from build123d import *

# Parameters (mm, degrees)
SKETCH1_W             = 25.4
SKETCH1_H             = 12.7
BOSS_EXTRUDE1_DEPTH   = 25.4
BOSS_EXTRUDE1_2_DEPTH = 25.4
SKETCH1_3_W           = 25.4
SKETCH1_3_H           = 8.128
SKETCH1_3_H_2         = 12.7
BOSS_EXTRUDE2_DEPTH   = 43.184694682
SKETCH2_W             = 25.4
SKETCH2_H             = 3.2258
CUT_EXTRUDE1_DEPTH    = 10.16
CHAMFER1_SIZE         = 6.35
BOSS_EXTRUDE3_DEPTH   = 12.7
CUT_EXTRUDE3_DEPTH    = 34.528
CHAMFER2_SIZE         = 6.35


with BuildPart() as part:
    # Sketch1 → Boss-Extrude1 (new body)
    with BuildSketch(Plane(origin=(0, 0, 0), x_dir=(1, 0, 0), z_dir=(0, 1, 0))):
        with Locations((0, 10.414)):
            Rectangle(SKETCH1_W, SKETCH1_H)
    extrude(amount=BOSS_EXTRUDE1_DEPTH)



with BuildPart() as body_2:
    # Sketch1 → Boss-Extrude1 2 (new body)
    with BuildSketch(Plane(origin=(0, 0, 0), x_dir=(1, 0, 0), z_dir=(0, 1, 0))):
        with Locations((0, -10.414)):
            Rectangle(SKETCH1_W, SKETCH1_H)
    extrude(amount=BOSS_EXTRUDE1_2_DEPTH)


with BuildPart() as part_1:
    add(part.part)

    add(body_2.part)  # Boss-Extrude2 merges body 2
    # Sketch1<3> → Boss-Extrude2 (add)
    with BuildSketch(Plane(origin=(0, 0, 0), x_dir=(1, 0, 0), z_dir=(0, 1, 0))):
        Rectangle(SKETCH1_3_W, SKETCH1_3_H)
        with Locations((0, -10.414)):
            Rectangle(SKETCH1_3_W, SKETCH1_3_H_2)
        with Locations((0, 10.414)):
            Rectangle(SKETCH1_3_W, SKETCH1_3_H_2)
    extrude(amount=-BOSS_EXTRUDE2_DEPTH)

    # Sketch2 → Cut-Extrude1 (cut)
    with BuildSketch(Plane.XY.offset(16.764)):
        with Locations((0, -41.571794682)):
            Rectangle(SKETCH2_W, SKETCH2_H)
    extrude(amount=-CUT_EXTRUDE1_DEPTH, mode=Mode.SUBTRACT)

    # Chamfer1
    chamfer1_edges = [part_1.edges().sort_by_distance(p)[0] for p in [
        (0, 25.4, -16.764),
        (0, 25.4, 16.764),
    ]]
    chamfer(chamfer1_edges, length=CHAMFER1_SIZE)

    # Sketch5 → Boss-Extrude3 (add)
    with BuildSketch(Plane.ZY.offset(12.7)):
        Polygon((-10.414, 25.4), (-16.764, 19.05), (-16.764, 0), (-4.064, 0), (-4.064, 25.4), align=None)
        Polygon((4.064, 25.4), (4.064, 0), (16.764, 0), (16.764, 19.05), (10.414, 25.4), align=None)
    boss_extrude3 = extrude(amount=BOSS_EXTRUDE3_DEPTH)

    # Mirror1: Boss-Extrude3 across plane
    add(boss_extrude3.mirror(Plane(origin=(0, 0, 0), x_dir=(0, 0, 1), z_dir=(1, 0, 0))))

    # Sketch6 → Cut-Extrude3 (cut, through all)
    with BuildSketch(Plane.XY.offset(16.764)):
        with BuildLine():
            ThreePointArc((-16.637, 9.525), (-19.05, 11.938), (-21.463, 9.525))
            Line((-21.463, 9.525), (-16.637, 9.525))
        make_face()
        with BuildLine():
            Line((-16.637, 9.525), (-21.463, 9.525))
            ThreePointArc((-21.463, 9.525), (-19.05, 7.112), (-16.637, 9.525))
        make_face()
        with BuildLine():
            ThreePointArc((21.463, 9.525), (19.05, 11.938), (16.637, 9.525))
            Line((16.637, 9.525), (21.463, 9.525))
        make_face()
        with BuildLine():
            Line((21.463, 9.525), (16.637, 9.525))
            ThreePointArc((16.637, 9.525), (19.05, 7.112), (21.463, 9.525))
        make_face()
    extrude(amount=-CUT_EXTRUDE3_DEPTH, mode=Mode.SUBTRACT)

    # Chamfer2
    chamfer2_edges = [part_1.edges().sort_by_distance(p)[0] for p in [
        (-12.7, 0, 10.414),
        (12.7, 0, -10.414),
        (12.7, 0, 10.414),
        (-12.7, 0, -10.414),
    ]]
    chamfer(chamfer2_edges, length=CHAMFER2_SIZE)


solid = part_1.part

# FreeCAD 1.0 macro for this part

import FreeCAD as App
import Part
import Sketcher

V = App.Vector
Q = App.Units.Quantity


def edges_at(feature, points):
    """Names of the edges that pass closest to the given points."""
    edges = feature.Shape.Edges
    near = lambda p: min(range(len(edges)), key=lambda i: edges[i].distToShape(Part.Vertex(*p))[0])
    return sorted({f"Edge{near(p) + 1}" for p in points})

doc = App.newDocument("Part")
params = doc.addObject("Spreadsheet::Sheet", "Params")
for row, (alias, value) in enumerate([
    ("sketch1_width", "1 in"),
    ("sketch1_height", "0.5 in"),
    ("pad1_length", "1 in"),
    ("sketch2_width", "1 in"),
    ("sketch2_height", "0.5 in"),
    ("pad2_length", "1 in"),
    ("sketch3_width", "1 in"),
    ("sketch3_height", "1.32 in"),
    ("pad3_length", "43.184695 mm"),
    ("sketch4_width", "1 in"),
    ("sketch4_height", "0.127 in"),
    ("pocket1_length", "0.4 in"),
    ("chamfer_size", "0.25 in"),
    ("sketch5_width", "1 in"),
    ("sketch5_height", "0.5 in"),
    ("sketch5_width2", "0.75 in"),
    ("pad4_length", "0.5 in"),
    ("sketch6_diameter", "0.19 in"),
    ("chamfer2_size", "0.25 in"),
], start=1):
    params.set(f"A{row}", alias)
    params.set(f"B{row}", "=" + value)
    params.setAlias(f"B{row}", alias)

body = doc.addObject("PartDesign::Body", "Body")

sketch1 = body.newObject("Sketcher::SketchObject", "Sketch")
sketch1.AttachmentSupport = (doc.getObject("XZ_Plane"), [""])
sketch1.MapMode = "FlatFace"
sketch1.addGeometry(Part.LineSegment(V(-13, -17, 0), V(-13, -4, 0)), False)
sketch1.addGeometry(Part.LineSegment(V(-13, -4, 0), V(13, -4, 0)), False)
sketch1.addGeometry(Part.LineSegment(V(13, -4, 0), V(13, -17, 0)), False)
sketch1.addGeometry(Part.LineSegment(V(13, -17, 0), V(-13, -17, 0)), False)
sketch1.addConstraint(Sketcher.Constraint("Coincident", 0, 2, 1, 1))
sketch1.addConstraint(Sketcher.Constraint("Coincident", 1, 2, 2, 1))
sketch1.addConstraint(Sketcher.Constraint("Coincident", 2, 2, 3, 1))
sketch1.addConstraint(Sketcher.Constraint("Coincident", 3, 2, 0, 1))
sketch1.addConstraint(Sketcher.Constraint("Vertical", 0))
sketch1.addConstraint(Sketcher.Constraint("Horizontal", 1))
sketch1.addConstraint(Sketcher.Constraint("Vertical", 2))
sketch1.addConstraint(Sketcher.Constraint("Horizontal", 3))
sketch1.addConstraint(Sketcher.Constraint("DistanceX", 1, 1, 1, 2, Q("1 in")))
sketch1.addConstraint(Sketcher.Constraint("DistanceY", 0, 1, 0, 2, Q("0.5 in")))
sketch1.addConstraint(Sketcher.Constraint("DistanceX", 0, 2, -1, 1, Q("0.5 in")))
sketch1.addConstraint(Sketcher.Constraint("DistanceY", 0, 2, -1, 1, Q("0.16 in")))
sketch1.setExpression("Constraints[8]", "Params.sketch1_width")
sketch1.setExpression("Constraints[9]", "Params.sketch1_height")
pad1 = body.newObject("PartDesign::Pad", "Pad")
pad1.Profile = sketch1
pad1.setExpression("Length", "Params.pad1_length")
pad1.Reversed = True
body2 = doc.addObject("PartDesign::Body", "Body001")

sketch2 = body2.newObject("Sketcher::SketchObject", "Sketch001")
sketch2.AttachmentSupport = (doc.getObject("XZ_Plane001"), [""])
sketch2.MapMode = "FlatFace"
sketch2.addGeometry(Part.LineSegment(V(-13, 4, 0), V(-13, 17, 0)), False)
sketch2.addGeometry(Part.LineSegment(V(-13, 17, 0), V(13, 17, 0)), False)
sketch2.addGeometry(Part.LineSegment(V(13, 17, 0), V(13, 4, 0)), False)
sketch2.addGeometry(Part.LineSegment(V(13, 4, 0), V(-13, 4, 0)), False)
sketch2.addConstraint(Sketcher.Constraint("Coincident", 0, 2, 1, 1))
sketch2.addConstraint(Sketcher.Constraint("Coincident", 1, 2, 2, 1))
sketch2.addConstraint(Sketcher.Constraint("Coincident", 2, 2, 3, 1))
sketch2.addConstraint(Sketcher.Constraint("Coincident", 3, 2, 0, 1))
sketch2.addConstraint(Sketcher.Constraint("Vertical", 0))
sketch2.addConstraint(Sketcher.Constraint("Horizontal", 1))
sketch2.addConstraint(Sketcher.Constraint("Vertical", 2))
sketch2.addConstraint(Sketcher.Constraint("Horizontal", 3))
sketch2.addConstraint(Sketcher.Constraint("DistanceX", 1, 1, 1, 2, Q("1 in")))
sketch2.addConstraint(Sketcher.Constraint("DistanceY", 0, 1, 0, 2, Q("0.5 in")))
sketch2.addConstraint(Sketcher.Constraint("DistanceX", 0, 2, -1, 1, Q("0.5 in")))
sketch2.addConstraint(Sketcher.Constraint("DistanceY", -1, 1, 0, 2, Q("0.66 in")))
sketch2.setExpression("Constraints[8]", "Params.sketch2_width")
sketch2.setExpression("Constraints[9]", "Params.sketch2_height")
pad2 = body2.newObject("PartDesign::Pad", "Pad001")
pad2.Profile = sketch2
pad2.setExpression("Length", "Params.pad2_length")
pad2.Reversed = True
body.AllowCompound = True
doc.recompute()

boolean = body.newObject("PartDesign::Boolean", "Boolean")
boolean.Type = "Fuse"
boolean.addObjects([body2])

sketch3 = body.newObject("Sketcher::SketchObject", "Sketch002")
sketch3.AttachmentSupport = (doc.getObject("XZ_Plane"), [""])
sketch3.MapMode = "FlatFace"
sketch3.addGeometry(Part.LineSegment(V(-13, 17, 0), V(13, 17, 0)), False)
sketch3.addGeometry(Part.LineSegment(V(13, 17, 0), V(13, -17, 0)), False)
sketch3.addGeometry(Part.LineSegment(V(13, -17, 0), V(-13, -17, 0)), False)
sketch3.addGeometry(Part.LineSegment(V(-13, -17, 0), V(-13, 17, 0)), False)
sketch3.addConstraint(Sketcher.Constraint("Coincident", 0, 2, 1, 1))
sketch3.addConstraint(Sketcher.Constraint("Coincident", 1, 2, 2, 1))
sketch3.addConstraint(Sketcher.Constraint("Coincident", 2, 2, 3, 1))
sketch3.addConstraint(Sketcher.Constraint("Coincident", 3, 2, 0, 1))
sketch3.addConstraint(Sketcher.Constraint("Horizontal", 0))
sketch3.addConstraint(Sketcher.Constraint("Vertical", 1))
sketch3.addConstraint(Sketcher.Constraint("Horizontal", 2))
sketch3.addConstraint(Sketcher.Constraint("Vertical", 3))
sketch3.addConstraint(Sketcher.Constraint("Symmetric", 0, 2, 2, 2, -1, 1))
sketch3.addConstraint(Sketcher.Constraint("DistanceX", 0, 1, 0, 2, Q("1 in")))
sketch3.addConstraint(Sketcher.Constraint("DistanceY", 1, 2, 1, 1, Q("1.32 in")))
sketch3.setExpression("Constraints[9]", "Params.sketch3_width")
sketch3.setExpression("Constraints[10]", "Params.sketch3_height")
pad3 = body.newObject("PartDesign::Pad", "Pad002")
pad3.Profile = sketch3
pad3.setExpression("Length", "Params.pad3_length")

sketch4 = body.newObject("Sketcher::SketchObject", "Sketch003")
sketch4.AttachmentSupport = (doc.getObject("XY_Plane"), [""])
sketch4.MapMode = "FlatFace"
sketch4.AttachmentOffset = App.Placement(V(0, 0, 0.66 * 25.4), App.Rotation())
sketch4.addGeometry(Part.LineSegment(V(-12.7, -40, 0), V(-12.7, -43.2, 0)), False)
sketch4.addGeometry(Part.LineSegment(V(-12.7, -43.2, 0), V(12.7, -43.2, 0)), False)
sketch4.addGeometry(Part.LineSegment(V(12.7, -43.2, 0), V(12.7, -40, 0)), False)
sketch4.addGeometry(Part.LineSegment(V(12.7, -40, 0), V(-12.7, -40, 0)), False)
sketch4.addConstraint(Sketcher.Constraint("Coincident", 0, 2, 1, 1))
sketch4.addConstraint(Sketcher.Constraint("Coincident", 1, 2, 2, 1))
sketch4.addConstraint(Sketcher.Constraint("Coincident", 2, 2, 3, 1))
sketch4.addConstraint(Sketcher.Constraint("Coincident", 3, 2, 0, 1))
sketch4.addConstraint(Sketcher.Constraint("Vertical", 0))
sketch4.addConstraint(Sketcher.Constraint("Horizontal", 1))
sketch4.addConstraint(Sketcher.Constraint("Vertical", 2))
sketch4.addConstraint(Sketcher.Constraint("Horizontal", 3))
sketch4.addConstraint(Sketcher.Constraint("DistanceX", 1, 1, 1, 2, Q("1 in")))
sketch4.addConstraint(Sketcher.Constraint("DistanceX", 0, 2, -1, 1, Q("0.5 in")))
sketch4.addConstraint(Sketcher.Constraint("DistanceY", 0, 2, 0, 1, Q("0.127 in")))
sketch4.addConstraint(Sketcher.Constraint("DistanceY", 0, 2, -1, 1, Q("43.184695 mm")))
sketch4.setExpression("Constraints[8]", "Params.sketch4_width")
sketch4.setExpression("Constraints[10]", "Params.sketch4_height")
pocket1 = body.newObject("PartDesign::Pocket", "Pocket")
pocket1.Profile = sketch4
pocket1.setExpression("Length", "Params.pocket1_length")
doc.recompute()

chamfer = body.newObject("PartDesign::Chamfer", "Chamfer")
chamfer.Base = (pocket1, edges_at(pocket1, [(0, 25.4, -16.764), (0, 25.4, 16.764)]))
chamfer.setExpression("Size", "Params.chamfer_size")

sketch5 = body.newObject("Sketcher::SketchObject", "Sketch004")
sketch5.AttachmentSupport = (doc.getObject("YZ_Plane"), [""])
sketch5.MapMode = "FlatFace"
sketch5.AttachmentOffset = App.Placement(V(0, 0, -0.5 * 25.4), App.Rotation())
sketch5.addGeometry(Part.LineSegment(V(25, -10, 0), V(19, -17, 0)), False)
sketch5.addGeometry(Part.LineSegment(V(19, -17, 0), V(0, -17, 0)), False)
sketch5.addGeometry(Part.LineSegment(V(0, -17, 0), V(0, -4, 0)), False)
sketch5.addGeometry(Part.LineSegment(V(0, -4, 0), V(25, -4, 0)), False)
sketch5.addGeometry(Part.LineSegment(V(25, -4, 0), V(25, -10, 0)), False)
sketch5.addGeometry(Part.LineSegment(V(25, 4, 0), V(0, 4, 0)), False)
sketch5.addGeometry(Part.LineSegment(V(0, 4, 0), V(0, 17, 0)), False)
sketch5.addGeometry(Part.LineSegment(V(0, 17, 0), V(19, 17, 0)), False)
sketch5.addGeometry(Part.LineSegment(V(19, 17, 0), V(25, 10, 0)), False)
sketch5.addGeometry(Part.LineSegment(V(25, 10, 0), V(25, 4, 0)), False)
sketch5.addConstraint(Sketcher.Constraint("Coincident", 0, 2, 1, 1))
sketch5.addConstraint(Sketcher.Constraint("Coincident", 1, 2, 2, 1))
sketch5.addConstraint(Sketcher.Constraint("Coincident", 2, 2, 3, 1))
sketch5.addConstraint(Sketcher.Constraint("Coincident", 3, 2, 4, 1))
sketch5.addConstraint(Sketcher.Constraint("Coincident", 4, 2, 0, 1))
sketch5.addConstraint(Sketcher.Constraint("Coincident", 5, 2, 6, 1))
sketch5.addConstraint(Sketcher.Constraint("Coincident", 6, 2, 7, 1))
sketch5.addConstraint(Sketcher.Constraint("Coincident", 7, 2, 8, 1))
sketch5.addConstraint(Sketcher.Constraint("Coincident", 8, 2, 9, 1))
sketch5.addConstraint(Sketcher.Constraint("Coincident", 9, 2, 5, 1))
sketch5.addConstraint(Sketcher.Constraint("Horizontal", 1))
sketch5.addConstraint(Sketcher.Constraint("Vertical", 2))
sketch5.addConstraint(Sketcher.Constraint("Horizontal", 3))
sketch5.addConstraint(Sketcher.Constraint("Vertical", 4))
sketch5.addConstraint(Sketcher.Constraint("Horizontal", 5))
sketch5.addConstraint(Sketcher.Constraint("Vertical", 6))
sketch5.addConstraint(Sketcher.Constraint("Horizontal", 7))
sketch5.addConstraint(Sketcher.Constraint("Vertical", 9))
sketch5.addConstraint(Sketcher.Constraint("Symmetric", 2, 2, 5, 2, -1, 1))
sketch5.addConstraint(Sketcher.Constraint("Symmetric", 1, 2, 6, 2, -1))
sketch5.addConstraint(Sketcher.Constraint("Symmetric", 4, 2, 8, 2, -1))
sketch5.addConstraint(Sketcher.Constraint("Perpendicular", 0, 8))
sketch5.addConstraint(Sketcher.Constraint("Vertical", 0, 2, 7, 2))
sketch5.addConstraint(Sketcher.Constraint("DistanceX", 3, 1, 3, 2, Q("1 in")))
sketch5.addConstraint(Sketcher.Constraint("DistanceY", 2, 1, 2, 2, Q("0.5 in")))
sketch5.addConstraint(Sketcher.Constraint("DistanceX", 1, 2, 1, 1, Q("0.75 in")))
sketch5.addConstraint(Sketcher.Constraint("DistanceY", 0, 2, -1, 1, Q("0.66 in")))
sketch5.setExpression("Constraints[23]", "Params.sketch5_width")
sketch5.setExpression("Constraints[24]", "Params.sketch5_height")
sketch5.setExpression("Constraints[25]", "Params.sketch5_width2")
pad4 = body.newObject("PartDesign::Pad", "Pad003")
pad4.Profile = sketch5
pad4.setExpression("Length", "Params.pad4_length")
pad4.Reversed = True
doc.recompute()

mirrored = body.newObject("PartDesign::Mirrored", "Mirrored")
mirrored.Originals = [pad4]
mirrored.MirrorPlane = (doc.getObject("YZ_Plane"), [""])
body.Tip = mirrored

sketch6 = body.newObject("Sketcher::SketchObject", "Sketch005")
sketch6.AttachmentSupport = (doc.getObject("XY_Plane"), [""])
sketch6.MapMode = "FlatFace"
sketch6.AttachmentOffset = App.Placement(V(0, 0, 0.66 * 25.4), App.Rotation())
sketch6.addGeometry(Part.Circle(V(-19.1, 9.5, 0), V(0, 0, 1), 2.4), False)
sketch6.addGeometry(Part.Circle(V(19.1, 9.5, 0), V(0, 0, 1), 2.4), False)
sketch6.addConstraint(Sketcher.Constraint("Equal", 0, 1))
sketch6.addConstraint(Sketcher.Constraint("Symmetric", 0, 3, 1, 3, -2))
sketch6.addConstraint(Sketcher.Constraint("Diameter", 0, Q("0.19 in")))
sketch6.addConstraint(Sketcher.Constraint("DistanceX", 0, 3, 1, 3, Q("1.5 in")))
sketch6.addConstraint(Sketcher.Constraint("DistanceY", -1, 1, 0, 3, Q("0.375 in")))
sketch6.setExpression("Constraints[2]", "Params.sketch6_diameter")
pocket2 = body.newObject("PartDesign::Pocket", "Pocket001")
pocket2.Profile = sketch6
pocket2.Type = "ThroughAll"
doc.recompute()

chamfer2 = body.newObject("PartDesign::Chamfer", "Chamfer001")
chamfer2.Base = (pocket2, edges_at(pocket2, [
    (-12.7, 0, 10.414),
    (12.7, 0, -10.414),
    (12.7, 0, 10.414),
    (-12.7, 0, -10.414),
]))
chamfer2.setExpression("Size", "Params.chamfer2_size")

doc.recompute()
